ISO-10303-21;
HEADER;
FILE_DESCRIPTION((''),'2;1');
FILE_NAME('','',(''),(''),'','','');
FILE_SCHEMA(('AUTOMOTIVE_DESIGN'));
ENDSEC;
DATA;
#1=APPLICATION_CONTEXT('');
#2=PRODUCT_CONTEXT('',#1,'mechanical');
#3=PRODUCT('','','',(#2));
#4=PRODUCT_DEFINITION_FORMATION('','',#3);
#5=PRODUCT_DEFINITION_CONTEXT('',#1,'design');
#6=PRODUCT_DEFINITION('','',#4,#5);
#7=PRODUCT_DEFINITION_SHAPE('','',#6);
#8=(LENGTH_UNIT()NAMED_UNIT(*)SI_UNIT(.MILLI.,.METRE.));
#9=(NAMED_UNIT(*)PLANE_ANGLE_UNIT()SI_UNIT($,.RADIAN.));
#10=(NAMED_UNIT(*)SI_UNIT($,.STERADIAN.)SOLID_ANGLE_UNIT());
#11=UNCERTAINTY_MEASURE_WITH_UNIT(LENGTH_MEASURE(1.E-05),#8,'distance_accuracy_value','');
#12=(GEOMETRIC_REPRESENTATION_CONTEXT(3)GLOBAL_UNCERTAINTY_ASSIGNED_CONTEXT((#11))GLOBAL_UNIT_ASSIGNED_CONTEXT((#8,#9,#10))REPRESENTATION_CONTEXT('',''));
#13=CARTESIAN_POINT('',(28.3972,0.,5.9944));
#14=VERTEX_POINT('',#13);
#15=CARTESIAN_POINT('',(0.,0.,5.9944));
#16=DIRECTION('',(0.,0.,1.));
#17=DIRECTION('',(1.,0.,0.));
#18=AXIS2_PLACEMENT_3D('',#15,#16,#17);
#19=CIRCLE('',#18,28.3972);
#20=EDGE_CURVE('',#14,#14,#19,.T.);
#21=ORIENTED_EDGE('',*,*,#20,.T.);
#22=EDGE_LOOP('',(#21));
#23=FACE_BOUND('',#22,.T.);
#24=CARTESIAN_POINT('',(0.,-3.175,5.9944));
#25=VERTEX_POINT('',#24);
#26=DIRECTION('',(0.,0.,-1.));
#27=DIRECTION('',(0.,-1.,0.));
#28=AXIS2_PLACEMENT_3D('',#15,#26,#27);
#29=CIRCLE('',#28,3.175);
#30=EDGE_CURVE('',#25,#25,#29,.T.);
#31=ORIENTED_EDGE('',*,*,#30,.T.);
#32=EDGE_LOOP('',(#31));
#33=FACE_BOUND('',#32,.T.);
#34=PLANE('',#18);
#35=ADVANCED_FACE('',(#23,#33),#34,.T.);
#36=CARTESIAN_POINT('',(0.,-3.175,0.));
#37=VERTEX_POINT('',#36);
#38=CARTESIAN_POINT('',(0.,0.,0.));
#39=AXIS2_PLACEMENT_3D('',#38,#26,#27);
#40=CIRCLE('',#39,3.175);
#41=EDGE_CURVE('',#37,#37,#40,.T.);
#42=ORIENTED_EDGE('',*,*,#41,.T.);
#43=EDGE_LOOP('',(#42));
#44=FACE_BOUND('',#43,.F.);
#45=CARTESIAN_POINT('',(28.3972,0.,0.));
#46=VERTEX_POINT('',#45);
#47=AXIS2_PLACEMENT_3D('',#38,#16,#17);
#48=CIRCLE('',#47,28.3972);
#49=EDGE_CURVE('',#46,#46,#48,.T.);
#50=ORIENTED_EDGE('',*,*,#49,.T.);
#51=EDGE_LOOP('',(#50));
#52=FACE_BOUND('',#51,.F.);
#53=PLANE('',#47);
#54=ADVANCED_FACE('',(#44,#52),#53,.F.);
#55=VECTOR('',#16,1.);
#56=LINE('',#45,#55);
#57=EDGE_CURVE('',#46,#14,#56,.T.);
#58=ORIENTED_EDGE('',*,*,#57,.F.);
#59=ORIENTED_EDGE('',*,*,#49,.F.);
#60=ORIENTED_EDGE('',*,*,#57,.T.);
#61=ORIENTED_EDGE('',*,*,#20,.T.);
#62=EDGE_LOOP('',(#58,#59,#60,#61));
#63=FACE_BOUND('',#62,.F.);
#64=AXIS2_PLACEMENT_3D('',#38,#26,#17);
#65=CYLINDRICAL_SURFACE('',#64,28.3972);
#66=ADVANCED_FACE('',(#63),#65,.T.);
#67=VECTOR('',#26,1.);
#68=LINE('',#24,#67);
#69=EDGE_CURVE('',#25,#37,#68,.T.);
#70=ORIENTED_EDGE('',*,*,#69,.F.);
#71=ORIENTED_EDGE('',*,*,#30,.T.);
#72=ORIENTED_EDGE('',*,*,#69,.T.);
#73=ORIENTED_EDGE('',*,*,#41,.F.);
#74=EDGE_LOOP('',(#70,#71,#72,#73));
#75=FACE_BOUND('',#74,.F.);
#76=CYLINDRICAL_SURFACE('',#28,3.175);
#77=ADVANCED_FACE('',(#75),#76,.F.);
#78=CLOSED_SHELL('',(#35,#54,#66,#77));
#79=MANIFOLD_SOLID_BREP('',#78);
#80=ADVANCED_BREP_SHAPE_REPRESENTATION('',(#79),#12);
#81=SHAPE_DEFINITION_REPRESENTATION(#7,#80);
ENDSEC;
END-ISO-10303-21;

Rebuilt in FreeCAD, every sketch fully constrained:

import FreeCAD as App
import Part
import Sketcher
Q = App.Units.Quantity

doc = App.newDocument("Part")
body = doc.addObject("PartDesign::Body", "Body")

# Sketch on XY plane
sketch1 = body.newObject("Sketcher::SketchObject", "Sketch")
sketch1.AttachmentSupport = (doc.getObject("XY_Plane"), [""])
sketch1.MapMode = "FlatFace"
sketch1.addGeometry(Part.Circle(App.Vector(0, 0, 0), App.Vector(0, 0, 1), 28), False)
sketch1.addConstraint(Sketcher.Constraint("Coincident", 0, 3, -1, 1))
sketch1.addConstraint(Sketcher.Constraint("Diameter", 0, Q("2.236 in")))
pad1 = body.newObject("PartDesign::Pad", "Pad")
pad1.Profile = sketch1
pad1.Length = Q("0.236 in")

# Sketch on XY plane
sketch2 = body.newObject("Sketcher::SketchObject", "Sketch001")
sketch2.AttachmentSupport = (doc.getObject("XY_Plane"), [""])
sketch2.MapMode = "FlatFace"
sketch2.AttachmentOffset = App.Placement(App.Vector(0, 0, 0.236 * 25.4), App.Rotation())
sketch2.addGeometry(Part.Circle(App.Vector(0, 0, 0), App.Vector(0, 0, 1), 3.2), False)
sketch2.addConstraint(Sketcher.Constraint("Coincident", 0, 3, -1, 1))
sketch2.addConstraint(Sketcher.Constraint("Diameter", 0, Q("0.25 in")))
doc.recompute()
hole = body.newObject("PartDesign::Hole", "Hole")
hole.Profile = sketch2
hole.ThreadType = "None"
hole.Diameter = Q("0.25 in")
hole.DepthType = "Dimension"
hole.Depth = Q("0.236 in")
hole.DrillPoint = "Flat"

doc.recompute()
